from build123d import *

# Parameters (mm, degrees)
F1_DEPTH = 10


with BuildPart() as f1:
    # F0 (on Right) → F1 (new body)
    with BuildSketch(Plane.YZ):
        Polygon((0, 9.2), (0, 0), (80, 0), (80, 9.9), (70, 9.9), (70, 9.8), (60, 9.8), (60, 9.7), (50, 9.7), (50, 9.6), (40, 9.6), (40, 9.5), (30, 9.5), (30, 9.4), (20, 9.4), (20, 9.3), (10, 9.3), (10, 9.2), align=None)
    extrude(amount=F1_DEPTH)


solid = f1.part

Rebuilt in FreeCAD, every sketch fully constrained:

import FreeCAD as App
import Part
import Sketcher

V = App.Vector
Q = App.Units.Quantity

doc = App.newDocument("Part")
body = doc.addObject("PartDesign::Body", "Body")

sketch1 = body.newObject("Sketcher::SketchObject", "Sketch")
sketch1.AttachmentSupport = (doc.getObject("YZ_Plane"), [""])
sketch1.MapMode = "FlatFace"
sketch1.addGeometry(Part.LineSegment(V(0, 9.2, 0), V(0, 0, 0)), False)
sketch1.addGeometry(Part.LineSegment(V(0, 0, 0), V(80, 0, 0)), False)
sketch1.addGeometry(Part.LineSegment(V(80, 0, 0), V(80, 9.9, 0)), False)
sketch1.addGeometry(Part.LineSegment(V(80, 9.9, 0), V(70, 9.9, 0)), False)
sketch1.addGeometry(Part.LineSegment(V(70, 9.9, 0), V(70, 9.8, 0)), False)
sketch1.addGeometry(Part.LineSegment(V(70, 9.8, 0), V(60, 9.8, 0)), False)
sketch1.addGeometry(Part.LineSegment(V(60, 9.8, 0), V(60, 9.7, 0)), False)
sketch1.addGeometry(Part.LineSegment(V(60, 9.7, 0), V(50, 9.7, 0)), False)
sketch1.addGeometry(Part.LineSegment(V(50, 9.7, 0), V(50, 9.6, 0)), False)
sketch1.addGeometry(Part.LineSegment(V(50, 9.6, 0), V(40, 9.6, 0)), False)
sketch1.addGeometry(Part.LineSegment(V(40, 9.6, 0), V(40, 9.5, 0)), False)
sketch1.addGeometry(Part.LineSegment(V(40, 9.5, 0), V(30, 9.5, 0)), False)
sketch1.addGeometry(Part.LineSegment(V(30, 9.5, 0), V(30, 9.4, 0)), False)
sketch1.addGeometry(Part.LineSegment(V(30, 9.4, 0), V(20, 9.4, 0)), False)
sketch1.addGeometry(Part.LineSegment(V(20, 9.4, 0), V(20, 9.3, 0)), False)
sketch1.addGeometry(Part.LineSegment(V(20, 9.3, 0), V(10, 9.3, 0)), False)
sketch1.addGeometry(Part.LineSegment(V(10, 9.3, 0), V(10, 9.2, 0)), False)
sketch1.addGeometry(Part.LineSegment(V(10, 9.2, 0), V(0, 9.2, 0)), False)
sketch1.addConstraint(Sketcher.Constraint("Coincident", 0, 2, 1, 1))
sketch1.addConstraint(Sketcher.Constraint("Coincident", 1, 2, 2, 1))
sketch1.addConstraint(Sketcher.Constraint("Coincident", 2, 2, 3, 1))
sketch1.addConstraint(Sketcher.Constraint("Coincident", 3, 2, 4, 1))
sketch1.addConstraint(Sketcher.Constraint("Coincident", 4, 2, 5, 1))
sketch1.addConstraint(Sketcher.Constraint("Coincident", 5, 2, 6, 1))
sketch1.addConstraint(Sketcher.Constraint("Coincident", 6, 2, 7, 1))
sketch1.addConstraint(Sketcher.Constraint("Coincident", 7, 2, 8, 1))
sketch1.addConstraint(Sketcher.Constraint("Coincident", 8, 2, 9, 1))
sketch1.addConstraint(Sketcher.Constraint("Coincident", 9, 2, 10, 1))
sketch1.addConstraint(Sketcher.Constraint("Coincident", 10, 2, 11, 1))
sketch1.addConstraint(Sketcher.Constraint("Coincident", 11, 2, 12, 1))
sketch1.addConstraint(Sketcher.Constraint("Coincident", 12, 2, 13, 1))
sketch1.addConstraint(Sketcher.Constraint("Coincident", 13, 2, 14, 1))
sketch1.addConstraint(Sketcher.Constraint("Coincident", 14, 2, 15, 1))
sketch1.addConstraint(Sketcher.Constraint("Coincident", 15, 2, 16, 1))
sketch1.addConstraint(Sketcher.Constraint("Coincident", 16, 2, 17, 1))
sketch1.addConstraint(Sketcher.Constraint("Coincident", 17, 2, 0, 1))
sketch1.addConstraint(Sketcher.Constraint("Vertical", 0))
sketch1.addConstraint(Sketcher.Constraint("Horizontal", 1))
sketch1.addConstraint(Sketcher.Constraint("Vertical", 2))
sketch1.addConstraint(Sketcher.Constraint("Horizontal", 3))
sketch1.addConstraint(Sketcher.Constraint("Vertical", 4))
sketch1.addConstraint(Sketcher.Constraint("Horizontal", 5))
sketch1.addConstraint(Sketcher.Constraint("Vertical", 6))
sketch1.addConstraint(Sketcher.Constraint("Horizontal", 7))
sketch1.addConstraint(Sketcher.Constraint("Vertical", 8))
sketch1.addConstraint(Sketcher.Constraint("Horizontal", 9))
sketch1.addConstraint(Sketcher.Constraint("Vertical", 10))
sketch1.addConstraint(Sketcher.Constraint("Horizontal", 11))
sketch1.addConstraint(Sketcher.Constraint("Vertical", 12))
sketch1.addConstraint(Sketcher.Constraint("Horizontal", 13))
sketch1.addConstraint(Sketcher.Constraint("Vertical", 14))
sketch1.addConstraint(Sketcher.Constraint("Horizontal", 15))
sketch1.addConstraint(Sketcher.Constraint("Vertical", 16))
sketch1.addConstraint(Sketcher.Constraint("Horizontal", 17))
sketch1.addConstraint(Sketcher.Constraint("Coincident", 0, 2, -1, 1))
sketch1.addConstraint(Sketcher.Constraint("Equal", 3, 5))
sketch1.addConstraint(Sketcher.Constraint("Equal", 5, 7))
sketch1.addConstraint(Sketcher.Constraint("Equal", 7, 9))
sketch1.addConstraint(Sketcher.Constraint("Equal", 9, 11))
sketch1.addConstraint(Sketcher.Constraint("Equal", 11, 13))
sketch1.addConstraint(Sketcher.Constraint("Equal", 13, 15))
sketch1.addConstraint(Sketcher.Constraint("Equal", 15, 17))
sketch1.addConstraint(Sketcher.Constraint("Equal", 4, 6))
sketch1.addConstraint(Sketcher.Constraint("Equal", 6, 8))
sketch1.addConstraint(Sketcher.Constraint("Equal", 8, 10))
sketch1.addConstraint(Sketcher.Constraint("Equal", 10, 12))
sketch1.addConstraint(Sketcher.Constraint("Equal", 12, 14))
sketch1.addConstraint(Sketcher.Constraint("Equal", 14, 16))
sketch1.addConstraint(Sketcher.Constraint("DistanceX", 1, 1, 1, 2, Q("80 mm")))
sketch1.addConstraint(Sketcher.Constraint("DistanceY", 0, 2, 0, 1, Q("9.2 mm")))
sketch1.addConstraint(Sketcher.Constraint("DistanceY", 2, 1, 2, 2, Q("9.9 mm")))
pad1 = body.newObject("PartDesign::Pad", "Pad")
pad1.Profile = sketch1
pad1.Length = 10

doc.recompute()
